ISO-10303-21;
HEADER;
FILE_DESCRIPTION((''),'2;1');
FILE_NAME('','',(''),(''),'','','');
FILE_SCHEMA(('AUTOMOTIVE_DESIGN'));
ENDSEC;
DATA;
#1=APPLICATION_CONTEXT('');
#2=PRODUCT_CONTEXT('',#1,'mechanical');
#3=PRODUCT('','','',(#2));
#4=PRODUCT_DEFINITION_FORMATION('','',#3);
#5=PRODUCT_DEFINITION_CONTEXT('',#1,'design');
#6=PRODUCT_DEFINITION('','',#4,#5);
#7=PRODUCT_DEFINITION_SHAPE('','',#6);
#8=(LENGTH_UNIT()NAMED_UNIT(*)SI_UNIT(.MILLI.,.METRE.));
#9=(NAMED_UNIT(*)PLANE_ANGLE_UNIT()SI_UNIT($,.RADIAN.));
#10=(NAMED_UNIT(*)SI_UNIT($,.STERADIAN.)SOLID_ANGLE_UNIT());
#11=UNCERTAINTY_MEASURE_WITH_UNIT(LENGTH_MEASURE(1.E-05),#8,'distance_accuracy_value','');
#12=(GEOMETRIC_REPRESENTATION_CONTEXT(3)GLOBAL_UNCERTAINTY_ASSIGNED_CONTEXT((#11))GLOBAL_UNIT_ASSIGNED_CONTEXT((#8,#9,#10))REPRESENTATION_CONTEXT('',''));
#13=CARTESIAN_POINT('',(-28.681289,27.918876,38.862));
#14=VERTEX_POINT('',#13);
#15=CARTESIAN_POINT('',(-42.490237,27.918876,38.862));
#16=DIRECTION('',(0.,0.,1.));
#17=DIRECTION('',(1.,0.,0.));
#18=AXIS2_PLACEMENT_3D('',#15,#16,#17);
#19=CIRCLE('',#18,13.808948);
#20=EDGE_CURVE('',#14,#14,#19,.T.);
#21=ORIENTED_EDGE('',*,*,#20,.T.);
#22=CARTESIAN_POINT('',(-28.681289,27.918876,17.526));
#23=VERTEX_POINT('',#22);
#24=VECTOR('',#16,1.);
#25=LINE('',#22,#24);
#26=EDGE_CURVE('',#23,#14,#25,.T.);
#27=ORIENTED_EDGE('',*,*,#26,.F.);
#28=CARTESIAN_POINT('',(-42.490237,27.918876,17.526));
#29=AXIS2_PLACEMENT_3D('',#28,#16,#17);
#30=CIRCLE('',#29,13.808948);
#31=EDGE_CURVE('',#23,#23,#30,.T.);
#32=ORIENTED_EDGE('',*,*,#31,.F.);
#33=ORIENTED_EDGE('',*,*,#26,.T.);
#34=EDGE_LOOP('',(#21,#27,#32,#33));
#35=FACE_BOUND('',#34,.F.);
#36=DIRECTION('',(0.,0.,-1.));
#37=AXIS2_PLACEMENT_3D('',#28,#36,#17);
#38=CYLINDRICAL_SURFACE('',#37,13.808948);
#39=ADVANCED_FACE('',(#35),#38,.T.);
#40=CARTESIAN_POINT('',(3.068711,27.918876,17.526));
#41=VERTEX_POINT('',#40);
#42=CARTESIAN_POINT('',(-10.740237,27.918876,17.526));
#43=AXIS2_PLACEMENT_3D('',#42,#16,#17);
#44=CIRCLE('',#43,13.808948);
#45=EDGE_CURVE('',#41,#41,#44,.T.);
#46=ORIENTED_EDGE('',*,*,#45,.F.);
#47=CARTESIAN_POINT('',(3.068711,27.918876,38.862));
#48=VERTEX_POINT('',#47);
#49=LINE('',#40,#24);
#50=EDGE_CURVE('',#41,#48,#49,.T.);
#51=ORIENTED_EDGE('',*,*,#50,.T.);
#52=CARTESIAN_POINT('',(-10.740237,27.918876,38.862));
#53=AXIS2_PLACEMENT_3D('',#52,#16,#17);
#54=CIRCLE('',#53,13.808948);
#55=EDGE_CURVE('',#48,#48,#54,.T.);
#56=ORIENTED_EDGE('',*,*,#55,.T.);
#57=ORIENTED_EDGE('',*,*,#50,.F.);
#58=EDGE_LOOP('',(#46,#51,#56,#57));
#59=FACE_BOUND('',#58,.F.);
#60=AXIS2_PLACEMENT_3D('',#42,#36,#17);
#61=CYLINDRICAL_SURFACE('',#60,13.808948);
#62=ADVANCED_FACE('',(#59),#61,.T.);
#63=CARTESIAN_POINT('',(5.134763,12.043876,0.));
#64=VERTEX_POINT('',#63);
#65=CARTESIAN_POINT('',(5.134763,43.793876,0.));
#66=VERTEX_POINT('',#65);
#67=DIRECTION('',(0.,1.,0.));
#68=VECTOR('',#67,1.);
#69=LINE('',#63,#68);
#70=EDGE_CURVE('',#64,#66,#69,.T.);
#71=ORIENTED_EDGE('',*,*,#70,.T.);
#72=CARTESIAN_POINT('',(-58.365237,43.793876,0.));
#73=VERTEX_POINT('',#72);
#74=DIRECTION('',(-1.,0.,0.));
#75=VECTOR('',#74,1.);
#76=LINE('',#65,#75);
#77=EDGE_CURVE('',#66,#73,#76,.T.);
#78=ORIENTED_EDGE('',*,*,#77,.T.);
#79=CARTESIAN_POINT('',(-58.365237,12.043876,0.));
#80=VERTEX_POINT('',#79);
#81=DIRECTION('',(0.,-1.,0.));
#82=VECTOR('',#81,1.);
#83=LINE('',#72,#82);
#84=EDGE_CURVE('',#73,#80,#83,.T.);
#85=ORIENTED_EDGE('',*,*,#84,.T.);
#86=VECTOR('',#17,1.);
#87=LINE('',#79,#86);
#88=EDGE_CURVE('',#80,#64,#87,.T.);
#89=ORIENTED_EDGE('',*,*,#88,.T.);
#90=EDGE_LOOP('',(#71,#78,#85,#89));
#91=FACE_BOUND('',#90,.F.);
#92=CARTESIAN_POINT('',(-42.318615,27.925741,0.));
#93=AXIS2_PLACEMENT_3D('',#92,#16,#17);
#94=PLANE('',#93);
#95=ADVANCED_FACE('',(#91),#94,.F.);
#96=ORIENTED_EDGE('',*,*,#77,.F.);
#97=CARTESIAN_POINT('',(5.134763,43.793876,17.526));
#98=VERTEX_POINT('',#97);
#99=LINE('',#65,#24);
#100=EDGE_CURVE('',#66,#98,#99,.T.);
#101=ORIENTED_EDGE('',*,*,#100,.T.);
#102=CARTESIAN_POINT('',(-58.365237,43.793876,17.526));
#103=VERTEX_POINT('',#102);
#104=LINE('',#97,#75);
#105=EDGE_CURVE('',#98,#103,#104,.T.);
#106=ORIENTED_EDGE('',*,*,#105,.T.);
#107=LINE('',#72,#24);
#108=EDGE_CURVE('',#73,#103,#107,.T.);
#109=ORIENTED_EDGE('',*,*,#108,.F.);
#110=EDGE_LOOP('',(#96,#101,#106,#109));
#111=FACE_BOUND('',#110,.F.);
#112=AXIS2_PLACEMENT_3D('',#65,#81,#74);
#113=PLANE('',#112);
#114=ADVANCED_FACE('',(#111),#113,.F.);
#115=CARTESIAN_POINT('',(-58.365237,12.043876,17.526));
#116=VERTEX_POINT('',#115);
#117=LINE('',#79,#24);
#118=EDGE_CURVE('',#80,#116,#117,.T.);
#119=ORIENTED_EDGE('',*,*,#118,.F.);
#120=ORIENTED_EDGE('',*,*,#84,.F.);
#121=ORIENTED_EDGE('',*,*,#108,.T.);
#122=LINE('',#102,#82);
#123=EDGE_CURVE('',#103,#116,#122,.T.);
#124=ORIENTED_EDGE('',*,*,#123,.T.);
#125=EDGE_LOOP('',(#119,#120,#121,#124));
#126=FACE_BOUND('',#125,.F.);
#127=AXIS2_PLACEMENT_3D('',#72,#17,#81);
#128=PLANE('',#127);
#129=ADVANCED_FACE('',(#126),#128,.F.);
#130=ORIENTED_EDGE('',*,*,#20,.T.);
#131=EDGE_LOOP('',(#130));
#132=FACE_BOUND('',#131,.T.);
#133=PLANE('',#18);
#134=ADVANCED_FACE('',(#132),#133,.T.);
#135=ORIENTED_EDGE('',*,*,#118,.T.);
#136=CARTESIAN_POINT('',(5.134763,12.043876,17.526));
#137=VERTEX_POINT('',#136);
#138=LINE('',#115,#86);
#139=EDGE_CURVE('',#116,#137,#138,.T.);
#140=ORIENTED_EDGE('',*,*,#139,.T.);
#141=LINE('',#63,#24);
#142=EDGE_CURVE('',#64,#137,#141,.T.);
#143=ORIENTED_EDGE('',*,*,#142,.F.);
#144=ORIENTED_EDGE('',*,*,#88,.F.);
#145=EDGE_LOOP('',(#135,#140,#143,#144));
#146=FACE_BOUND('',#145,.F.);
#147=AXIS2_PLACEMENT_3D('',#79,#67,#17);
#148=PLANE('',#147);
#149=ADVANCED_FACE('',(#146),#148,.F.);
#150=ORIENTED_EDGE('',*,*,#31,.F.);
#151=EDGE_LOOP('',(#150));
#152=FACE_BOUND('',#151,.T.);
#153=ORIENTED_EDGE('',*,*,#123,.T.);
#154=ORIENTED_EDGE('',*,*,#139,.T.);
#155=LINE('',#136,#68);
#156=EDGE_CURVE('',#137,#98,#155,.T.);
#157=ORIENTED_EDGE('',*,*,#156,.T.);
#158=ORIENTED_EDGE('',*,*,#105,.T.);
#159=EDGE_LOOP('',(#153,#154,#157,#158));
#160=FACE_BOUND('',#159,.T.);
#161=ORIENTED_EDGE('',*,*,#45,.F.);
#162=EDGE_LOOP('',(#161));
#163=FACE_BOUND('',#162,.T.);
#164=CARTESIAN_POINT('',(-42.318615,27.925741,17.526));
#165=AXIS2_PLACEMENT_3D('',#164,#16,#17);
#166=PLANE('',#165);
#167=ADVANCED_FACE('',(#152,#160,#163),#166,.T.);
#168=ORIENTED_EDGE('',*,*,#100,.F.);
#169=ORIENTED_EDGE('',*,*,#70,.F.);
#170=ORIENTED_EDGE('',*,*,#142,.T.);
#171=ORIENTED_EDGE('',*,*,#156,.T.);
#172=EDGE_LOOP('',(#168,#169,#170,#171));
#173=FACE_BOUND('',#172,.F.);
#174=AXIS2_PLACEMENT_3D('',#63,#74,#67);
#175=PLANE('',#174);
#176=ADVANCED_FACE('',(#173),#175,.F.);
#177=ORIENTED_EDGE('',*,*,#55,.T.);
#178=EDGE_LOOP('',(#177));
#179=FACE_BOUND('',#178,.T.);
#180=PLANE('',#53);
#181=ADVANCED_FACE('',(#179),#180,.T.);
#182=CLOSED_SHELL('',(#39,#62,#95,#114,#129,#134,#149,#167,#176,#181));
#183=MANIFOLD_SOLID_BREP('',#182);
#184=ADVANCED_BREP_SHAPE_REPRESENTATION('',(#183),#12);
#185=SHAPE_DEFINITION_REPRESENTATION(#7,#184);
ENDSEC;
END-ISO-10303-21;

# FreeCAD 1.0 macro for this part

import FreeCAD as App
import Part
import Sketcher
Q = App.Units.Quantity


def add_polygon(sketch, points):
    """Adds a closed chain of lines whose ends are joined by coincident constraints."""
    first, n = sketch.GeometryCount, len(points)
    for a, b in zip(points, points[1:] + points[:1]):
        sketch.addGeometry(Part.LineSegment(App.Vector(*a, 0), App.Vector(*b, 0)), False)
    for i in range(n):
        sketch.addConstraint(Sketcher.Constraint("Coincident", first + i, 2, first + (i + 1) % n, 1))

doc = App.newDocument("Part")
body = doc.addObject("PartDesign::Body", "Body")

# Sketch on XY plane
sketch1 = body.newObject("Sketcher::SketchObject", "Sketch")
sketch1.AttachmentSupport = (doc.getObject("XY_Plane"), [""])
sketch1.MapMode = "FlatFace"
add_polygon(sketch1, [(-58, 44), (-58, 12), (5, 12), (5, 44)])  # lines 0-3
sketch1.addConstraint([
    Sketcher.Constraint("Vertical", 0),
    Sketcher.Constraint("Horizontal", 1),
    Sketcher.Constraint("Vertical", 2),
    Sketcher.Constraint("Horizontal", 3),
    Sketcher.Constraint("DistanceX", 1, 1, 1, 2, Q("2.5 in")),
    Sketcher.Constraint("DistanceY", 0, 2, 0, 1, Q("1.25 in")),
    Sketcher.Constraint("DistanceX", 0, 2, -1, 1, Q("58.365237 mm")),
    Sketcher.Constraint("DistanceY", -1, 1, 0, 2, Q("12.043876 mm")),
])
pad1 = body.newObject("PartDesign::Pad", "Pad")
pad1.Profile = sketch1
pad1.Length = Q("0.69 in")

# Sketch on XY plane
sketch2 = body.newObject("Sketcher::SketchObject", "Sketch001")
sketch2.AttachmentSupport = (doc.getObject("XY_Plane"), [""])
sketch2.MapMode = "FlatFace"
sketch2.AttachmentOffset = App.Placement(App.Vector(0, 0, 0.69 * 25.4), App.Rotation())
sketch2.addGeometry([
    Part.Circle(App.Vector(-42, 28, 0), App.Vector(0, 0, 1), 14),
    Part.Circle(App.Vector(-11, 28, 0), App.Vector(0, 0, 1), 14),
], False)
sketch2.addConstraint([
    Sketcher.Constraint("Equal", 0, 1),
    Sketcher.Constraint("Horizontal", 0, 3, 1, 3),
    Sketcher.Constraint("DistanceX", 0, 3, 1, 3, Q("1.25 in")),
    Sketcher.Constraint("Diameter", 0, Q("27.617896 mm")),
    Sketcher.Constraint("DistanceX", 0, 3, -1, 1, Q("42.490237 mm")),
    Sketcher.Constraint("DistanceY", -1, 1, 0, 3, Q("27.918876 mm")),
])
pad2 = body.newObject("PartDesign::Pad", "Pad001")
pad2.Profile = sketch2
pad2.Length = Q("0.84 in")

doc.recompute()
